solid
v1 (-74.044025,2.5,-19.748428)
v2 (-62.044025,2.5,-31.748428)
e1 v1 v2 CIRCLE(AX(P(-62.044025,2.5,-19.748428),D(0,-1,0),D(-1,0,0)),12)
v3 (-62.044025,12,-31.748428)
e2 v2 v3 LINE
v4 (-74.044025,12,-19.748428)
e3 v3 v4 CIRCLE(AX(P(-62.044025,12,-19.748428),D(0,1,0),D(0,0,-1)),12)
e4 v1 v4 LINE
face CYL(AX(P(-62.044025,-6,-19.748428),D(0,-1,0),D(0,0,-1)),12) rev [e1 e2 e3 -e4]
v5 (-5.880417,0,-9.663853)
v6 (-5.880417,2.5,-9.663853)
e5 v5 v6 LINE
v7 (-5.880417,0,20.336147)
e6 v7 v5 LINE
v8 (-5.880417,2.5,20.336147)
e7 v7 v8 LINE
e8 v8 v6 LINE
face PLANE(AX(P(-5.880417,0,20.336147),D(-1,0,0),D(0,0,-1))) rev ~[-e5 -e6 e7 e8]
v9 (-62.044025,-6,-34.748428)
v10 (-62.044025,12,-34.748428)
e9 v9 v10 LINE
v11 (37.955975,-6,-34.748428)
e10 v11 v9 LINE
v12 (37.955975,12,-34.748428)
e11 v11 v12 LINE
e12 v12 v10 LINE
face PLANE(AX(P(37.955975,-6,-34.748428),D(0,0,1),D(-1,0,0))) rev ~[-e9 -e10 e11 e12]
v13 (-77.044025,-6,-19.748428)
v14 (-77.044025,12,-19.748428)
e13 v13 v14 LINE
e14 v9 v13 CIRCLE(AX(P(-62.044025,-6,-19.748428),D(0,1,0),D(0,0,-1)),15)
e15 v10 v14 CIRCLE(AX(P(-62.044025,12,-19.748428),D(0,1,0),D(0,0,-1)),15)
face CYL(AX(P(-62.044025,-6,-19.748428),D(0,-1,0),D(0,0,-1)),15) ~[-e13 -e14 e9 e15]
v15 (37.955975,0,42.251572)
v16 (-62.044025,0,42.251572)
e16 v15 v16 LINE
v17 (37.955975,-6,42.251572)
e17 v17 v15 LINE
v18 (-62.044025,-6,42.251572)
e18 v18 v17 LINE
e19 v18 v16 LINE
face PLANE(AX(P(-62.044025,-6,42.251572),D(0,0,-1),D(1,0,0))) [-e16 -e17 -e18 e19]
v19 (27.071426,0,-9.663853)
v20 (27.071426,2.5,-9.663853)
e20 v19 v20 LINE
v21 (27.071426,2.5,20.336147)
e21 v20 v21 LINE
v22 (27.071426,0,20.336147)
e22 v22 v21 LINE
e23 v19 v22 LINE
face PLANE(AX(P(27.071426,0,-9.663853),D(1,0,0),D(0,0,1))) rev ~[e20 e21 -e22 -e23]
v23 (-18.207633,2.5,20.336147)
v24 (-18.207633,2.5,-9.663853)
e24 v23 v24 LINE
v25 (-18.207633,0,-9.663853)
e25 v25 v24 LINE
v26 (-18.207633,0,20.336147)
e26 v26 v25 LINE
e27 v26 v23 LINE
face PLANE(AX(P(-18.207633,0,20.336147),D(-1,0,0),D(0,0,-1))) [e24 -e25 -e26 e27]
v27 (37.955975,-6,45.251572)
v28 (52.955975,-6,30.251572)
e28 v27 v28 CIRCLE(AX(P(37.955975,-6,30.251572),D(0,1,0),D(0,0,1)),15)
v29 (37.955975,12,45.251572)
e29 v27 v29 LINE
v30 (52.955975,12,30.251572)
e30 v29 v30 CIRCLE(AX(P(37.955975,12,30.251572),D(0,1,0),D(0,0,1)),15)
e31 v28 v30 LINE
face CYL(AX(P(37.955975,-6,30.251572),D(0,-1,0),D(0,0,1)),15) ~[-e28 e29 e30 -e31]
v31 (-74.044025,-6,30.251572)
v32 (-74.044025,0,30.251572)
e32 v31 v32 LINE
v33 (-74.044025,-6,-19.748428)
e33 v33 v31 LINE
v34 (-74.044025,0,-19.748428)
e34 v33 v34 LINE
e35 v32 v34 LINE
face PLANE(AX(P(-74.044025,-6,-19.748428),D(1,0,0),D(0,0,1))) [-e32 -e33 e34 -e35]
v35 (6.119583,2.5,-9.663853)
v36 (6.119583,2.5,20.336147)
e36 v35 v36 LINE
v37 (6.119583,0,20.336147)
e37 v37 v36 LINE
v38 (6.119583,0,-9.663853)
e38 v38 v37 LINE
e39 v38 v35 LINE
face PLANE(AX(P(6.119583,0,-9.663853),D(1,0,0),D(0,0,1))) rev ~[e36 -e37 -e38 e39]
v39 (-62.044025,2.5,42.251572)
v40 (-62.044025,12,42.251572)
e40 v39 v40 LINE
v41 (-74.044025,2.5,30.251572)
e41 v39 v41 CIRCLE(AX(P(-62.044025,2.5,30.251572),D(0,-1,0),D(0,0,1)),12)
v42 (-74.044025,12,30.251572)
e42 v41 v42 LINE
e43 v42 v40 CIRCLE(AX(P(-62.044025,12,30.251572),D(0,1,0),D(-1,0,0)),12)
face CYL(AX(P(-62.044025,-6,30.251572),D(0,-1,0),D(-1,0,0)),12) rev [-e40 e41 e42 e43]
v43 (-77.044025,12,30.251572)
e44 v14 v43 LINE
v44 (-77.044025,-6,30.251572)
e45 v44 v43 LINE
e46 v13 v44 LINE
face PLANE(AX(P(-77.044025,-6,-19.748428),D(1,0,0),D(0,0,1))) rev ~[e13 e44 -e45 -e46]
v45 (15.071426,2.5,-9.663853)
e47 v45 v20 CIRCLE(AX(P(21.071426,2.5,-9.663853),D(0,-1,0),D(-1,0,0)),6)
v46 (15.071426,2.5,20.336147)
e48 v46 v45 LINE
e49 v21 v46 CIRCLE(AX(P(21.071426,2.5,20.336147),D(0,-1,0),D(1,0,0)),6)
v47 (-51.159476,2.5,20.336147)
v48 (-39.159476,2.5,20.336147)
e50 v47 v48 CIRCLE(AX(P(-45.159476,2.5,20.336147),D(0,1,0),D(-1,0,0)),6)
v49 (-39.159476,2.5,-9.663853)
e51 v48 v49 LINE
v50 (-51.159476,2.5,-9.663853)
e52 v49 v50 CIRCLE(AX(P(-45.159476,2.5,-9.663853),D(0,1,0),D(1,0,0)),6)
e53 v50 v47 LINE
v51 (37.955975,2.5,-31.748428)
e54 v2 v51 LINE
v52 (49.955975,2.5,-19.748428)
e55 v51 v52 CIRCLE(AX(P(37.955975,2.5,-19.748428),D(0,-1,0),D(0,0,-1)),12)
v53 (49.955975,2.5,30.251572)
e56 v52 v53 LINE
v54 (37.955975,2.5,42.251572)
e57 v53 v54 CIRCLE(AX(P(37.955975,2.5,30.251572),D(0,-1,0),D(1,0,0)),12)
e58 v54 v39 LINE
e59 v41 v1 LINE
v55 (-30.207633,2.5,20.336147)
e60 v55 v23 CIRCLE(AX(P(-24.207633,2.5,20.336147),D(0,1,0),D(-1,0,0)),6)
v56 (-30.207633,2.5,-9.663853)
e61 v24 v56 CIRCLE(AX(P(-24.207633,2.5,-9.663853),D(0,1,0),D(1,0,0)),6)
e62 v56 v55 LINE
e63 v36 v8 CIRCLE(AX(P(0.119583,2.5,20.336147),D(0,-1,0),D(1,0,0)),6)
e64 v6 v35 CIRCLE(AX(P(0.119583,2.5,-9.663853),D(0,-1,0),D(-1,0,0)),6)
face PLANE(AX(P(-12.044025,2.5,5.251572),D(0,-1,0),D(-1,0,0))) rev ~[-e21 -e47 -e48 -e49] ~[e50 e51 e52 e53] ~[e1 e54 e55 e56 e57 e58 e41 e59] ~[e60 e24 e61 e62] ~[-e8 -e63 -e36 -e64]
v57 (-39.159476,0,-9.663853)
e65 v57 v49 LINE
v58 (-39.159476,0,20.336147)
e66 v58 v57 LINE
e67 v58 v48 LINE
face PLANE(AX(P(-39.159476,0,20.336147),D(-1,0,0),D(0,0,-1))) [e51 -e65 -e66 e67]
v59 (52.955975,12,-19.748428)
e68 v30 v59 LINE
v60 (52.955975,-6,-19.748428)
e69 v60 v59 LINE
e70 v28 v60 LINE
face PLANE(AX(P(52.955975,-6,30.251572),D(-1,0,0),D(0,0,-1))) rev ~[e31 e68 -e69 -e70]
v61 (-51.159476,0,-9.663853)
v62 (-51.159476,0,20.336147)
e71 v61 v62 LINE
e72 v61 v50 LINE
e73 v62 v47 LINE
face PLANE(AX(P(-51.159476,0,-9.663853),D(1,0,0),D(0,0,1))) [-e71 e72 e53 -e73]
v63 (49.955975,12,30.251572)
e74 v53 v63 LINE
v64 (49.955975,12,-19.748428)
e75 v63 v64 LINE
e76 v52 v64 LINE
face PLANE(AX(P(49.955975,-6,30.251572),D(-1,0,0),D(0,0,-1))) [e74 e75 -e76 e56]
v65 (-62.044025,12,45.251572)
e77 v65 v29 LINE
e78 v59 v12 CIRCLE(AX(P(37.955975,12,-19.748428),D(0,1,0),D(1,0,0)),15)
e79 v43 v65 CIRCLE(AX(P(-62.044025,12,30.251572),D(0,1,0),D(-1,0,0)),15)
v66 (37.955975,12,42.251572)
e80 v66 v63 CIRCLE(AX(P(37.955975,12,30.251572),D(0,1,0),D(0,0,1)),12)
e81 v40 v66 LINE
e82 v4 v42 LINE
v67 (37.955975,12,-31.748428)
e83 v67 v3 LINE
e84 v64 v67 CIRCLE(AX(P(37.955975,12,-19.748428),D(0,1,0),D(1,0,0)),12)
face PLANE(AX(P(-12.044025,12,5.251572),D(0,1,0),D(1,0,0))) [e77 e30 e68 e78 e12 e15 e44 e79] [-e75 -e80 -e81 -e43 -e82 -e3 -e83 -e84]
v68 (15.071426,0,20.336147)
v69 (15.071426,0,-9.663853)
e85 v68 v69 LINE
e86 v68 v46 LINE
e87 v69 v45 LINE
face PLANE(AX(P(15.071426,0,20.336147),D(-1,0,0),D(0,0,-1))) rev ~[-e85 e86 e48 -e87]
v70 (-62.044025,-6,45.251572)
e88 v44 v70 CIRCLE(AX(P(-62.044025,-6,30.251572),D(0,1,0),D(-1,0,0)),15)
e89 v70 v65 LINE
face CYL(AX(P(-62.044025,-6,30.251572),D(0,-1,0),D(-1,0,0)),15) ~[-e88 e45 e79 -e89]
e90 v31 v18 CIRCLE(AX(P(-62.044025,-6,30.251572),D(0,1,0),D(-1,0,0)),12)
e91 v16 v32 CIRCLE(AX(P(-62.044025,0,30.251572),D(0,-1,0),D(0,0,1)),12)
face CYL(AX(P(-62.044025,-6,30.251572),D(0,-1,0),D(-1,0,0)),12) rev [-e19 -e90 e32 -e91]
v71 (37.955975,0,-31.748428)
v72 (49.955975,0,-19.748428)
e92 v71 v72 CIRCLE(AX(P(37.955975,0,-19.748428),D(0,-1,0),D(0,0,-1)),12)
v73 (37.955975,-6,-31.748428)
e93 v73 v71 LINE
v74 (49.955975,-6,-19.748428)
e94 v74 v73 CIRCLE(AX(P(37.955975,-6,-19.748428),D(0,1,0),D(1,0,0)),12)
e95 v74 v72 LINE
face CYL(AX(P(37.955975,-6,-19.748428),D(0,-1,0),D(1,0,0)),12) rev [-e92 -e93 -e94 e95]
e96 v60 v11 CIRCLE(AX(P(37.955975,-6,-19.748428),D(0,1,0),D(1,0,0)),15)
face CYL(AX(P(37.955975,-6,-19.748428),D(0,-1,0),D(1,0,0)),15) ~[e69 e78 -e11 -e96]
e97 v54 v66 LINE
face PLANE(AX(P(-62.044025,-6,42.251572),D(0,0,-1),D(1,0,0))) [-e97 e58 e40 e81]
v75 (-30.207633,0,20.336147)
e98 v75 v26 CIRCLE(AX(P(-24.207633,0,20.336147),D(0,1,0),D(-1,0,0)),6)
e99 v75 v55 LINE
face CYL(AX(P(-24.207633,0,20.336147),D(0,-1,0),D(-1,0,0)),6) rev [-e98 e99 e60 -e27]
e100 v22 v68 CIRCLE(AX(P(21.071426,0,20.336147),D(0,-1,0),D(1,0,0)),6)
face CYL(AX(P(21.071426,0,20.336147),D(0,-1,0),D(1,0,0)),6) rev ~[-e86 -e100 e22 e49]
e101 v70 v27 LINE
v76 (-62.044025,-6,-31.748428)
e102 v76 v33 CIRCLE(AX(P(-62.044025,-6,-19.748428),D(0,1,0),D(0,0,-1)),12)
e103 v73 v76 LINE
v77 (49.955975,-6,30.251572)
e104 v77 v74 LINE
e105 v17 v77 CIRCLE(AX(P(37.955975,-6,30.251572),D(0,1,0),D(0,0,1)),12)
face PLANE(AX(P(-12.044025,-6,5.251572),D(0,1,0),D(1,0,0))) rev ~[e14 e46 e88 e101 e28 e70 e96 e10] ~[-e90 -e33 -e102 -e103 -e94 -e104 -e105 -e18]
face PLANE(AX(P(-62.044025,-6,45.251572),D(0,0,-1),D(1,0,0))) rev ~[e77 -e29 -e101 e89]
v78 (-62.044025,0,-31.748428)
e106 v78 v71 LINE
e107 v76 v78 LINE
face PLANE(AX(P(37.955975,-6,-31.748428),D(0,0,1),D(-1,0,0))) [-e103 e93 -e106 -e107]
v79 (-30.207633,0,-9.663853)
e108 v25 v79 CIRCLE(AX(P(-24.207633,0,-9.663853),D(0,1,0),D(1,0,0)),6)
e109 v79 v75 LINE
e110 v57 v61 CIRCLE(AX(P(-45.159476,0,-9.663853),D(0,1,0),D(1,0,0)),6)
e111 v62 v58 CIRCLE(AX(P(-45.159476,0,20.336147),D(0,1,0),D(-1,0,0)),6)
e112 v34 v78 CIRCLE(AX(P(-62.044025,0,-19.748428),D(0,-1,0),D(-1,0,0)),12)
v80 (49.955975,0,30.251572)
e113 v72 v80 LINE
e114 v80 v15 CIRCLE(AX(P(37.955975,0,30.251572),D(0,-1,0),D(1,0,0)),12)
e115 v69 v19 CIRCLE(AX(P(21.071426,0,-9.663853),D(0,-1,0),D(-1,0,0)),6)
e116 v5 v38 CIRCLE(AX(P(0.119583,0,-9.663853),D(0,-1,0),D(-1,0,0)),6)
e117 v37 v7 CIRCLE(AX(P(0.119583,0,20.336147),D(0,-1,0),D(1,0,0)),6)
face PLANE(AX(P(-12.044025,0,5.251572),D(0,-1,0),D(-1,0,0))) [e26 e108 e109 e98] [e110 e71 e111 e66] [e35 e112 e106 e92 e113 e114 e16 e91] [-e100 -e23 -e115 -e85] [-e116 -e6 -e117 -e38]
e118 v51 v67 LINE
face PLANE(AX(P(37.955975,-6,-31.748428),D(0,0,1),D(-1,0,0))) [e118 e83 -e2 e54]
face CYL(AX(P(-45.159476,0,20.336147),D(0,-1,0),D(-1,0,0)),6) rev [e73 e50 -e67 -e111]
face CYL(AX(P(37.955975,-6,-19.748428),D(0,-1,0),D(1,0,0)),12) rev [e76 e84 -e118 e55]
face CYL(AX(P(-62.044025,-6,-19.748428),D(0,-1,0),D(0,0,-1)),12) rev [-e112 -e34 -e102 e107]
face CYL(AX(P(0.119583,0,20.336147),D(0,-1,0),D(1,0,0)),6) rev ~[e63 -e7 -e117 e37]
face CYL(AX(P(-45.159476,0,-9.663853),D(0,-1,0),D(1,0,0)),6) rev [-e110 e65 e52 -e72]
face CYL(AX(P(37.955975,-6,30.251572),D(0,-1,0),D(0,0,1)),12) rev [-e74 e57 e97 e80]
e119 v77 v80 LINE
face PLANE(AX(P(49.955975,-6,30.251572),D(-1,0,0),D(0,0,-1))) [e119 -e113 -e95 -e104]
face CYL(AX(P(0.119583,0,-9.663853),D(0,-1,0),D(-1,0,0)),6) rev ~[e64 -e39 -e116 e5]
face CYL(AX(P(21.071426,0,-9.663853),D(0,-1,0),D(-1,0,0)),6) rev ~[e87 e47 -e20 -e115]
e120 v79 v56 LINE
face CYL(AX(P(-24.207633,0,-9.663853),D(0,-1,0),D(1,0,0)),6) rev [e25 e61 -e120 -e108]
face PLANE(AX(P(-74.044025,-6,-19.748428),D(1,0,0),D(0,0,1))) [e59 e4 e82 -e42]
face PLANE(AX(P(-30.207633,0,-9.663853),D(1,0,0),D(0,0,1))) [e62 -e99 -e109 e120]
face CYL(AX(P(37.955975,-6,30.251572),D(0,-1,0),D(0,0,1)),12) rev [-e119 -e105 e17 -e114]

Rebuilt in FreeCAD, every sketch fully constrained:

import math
import FreeCAD as App
import Part
import Sketcher

doc = App.newDocument("Part")
params = doc.addObject("Spreadsheet::Sheet", "Params")
for row, (alias, value) in enumerate([
    ("sketch1_radius", "15 mm"),
    ("sketch1_radius2", "12 mm"),
    ("sketch1_width", "100 mm"),
    ("sketch1_height", "50 mm"),
    ("pad1_length", "12 mm"),
    ("pad1_length2", "6 mm"),
    ("sketch2_radius", "12 mm"),
    ("sketch2_radius2", "6 mm"),
    ("sketch2_width", "100 mm"),
    ("sketch2_height", "50 mm"),
    ("sketch2_height2", "30 mm"),
    ("pad2_length", "2.5 mm"),
], start=1):
    params.set(f"A{row}", alias)
    params.set(f"B{row}", "=" + value)
    params.setAlias(f"B{row}", alias)

body = doc.addObject("PartDesign::Body", "Body")

sketch1 = body.newObject("Sketcher::SketchObject", "Sketch")
sketch1.AttachmentSupport = (doc.getObject("XZ_Plane"), [""])
sketch1.MapMode = "FlatFace"
sketch1.addGeometry(Part.LineSegment(App.Vector(-77, -20, 0), App.Vector(-77, 30, 0)), False)
sketch1.addGeometry(Part.ArcOfCircle(Part.Circle(App.Vector(-62, 30, 0), App.Vector(0, 0, 1), 15), math.radians(90), math.radians(180)), False)
sketch1.addGeometry(Part.LineSegment(App.Vector(-62, 45, 0), App.Vector(38, 45, 0)), False)
sketch1.addGeometry(Part.ArcOfCircle(Part.Circle(App.Vector(38, 30, 0), App.Vector(0, 0, 1), 15), math.radians(0), math.radians(90)), False)
sketch1.addGeometry(Part.LineSegment(App.Vector(53, 30, 0), App.Vector(53, -20, 0)), False)
sketch1.addGeometry(Part.ArcOfCircle(Part.Circle(App.Vector(38, -20, 0), App.Vector(0, 0, 1), 15), math.radians(-90), math.radians(0)), False)
sketch1.addGeometry(Part.LineSegment(App.Vector(38, -35, 0), App.Vector(-62, -35, 0)), False)
sketch1.addGeometry(Part.ArcOfCircle(Part.Circle(App.Vector(-62, -20, 0), App.Vector(0, 0, 1), 15), math.radians(180), math.radians(270)), False)
sketch1.addGeometry(Part.LineSegment(App.Vector(-74, 30, 0), App.Vector(-74, -20, 0)), False)
sketch1.addGeometry(Part.ArcOfCircle(Part.Circle(App.Vector(-62, -20, 0), App.Vector(0, 0, 1), 12), math.radians(-180), math.radians(-90)), False)
sketch1.addGeometry(Part.LineSegment(App.Vector(-62, -32, 0), App.Vector(38, -32, 0)), False)
sketch1.addGeometry(Part.ArcOfCircle(Part.Circle(App.Vector(38, -20, 0), App.Vector(0, 0, 1), 12), math.radians(-90), math.radians(0)), False)
sketch1.addGeometry(Part.LineSegment(App.Vector(50, -20, 0), App.Vector(50, 30, 0)), False)
sketch1.addGeometry(Part.ArcOfCircle(Part.Circle(App.Vector(38, 30, 0), App.Vector(0, 0, 1), 12), math.radians(0), math.radians(90)), False)
sketch1.addGeometry(Part.LineSegment(App.Vector(38, 42, 0), App.Vector(-62, 42, 0)), False)
sketch1.addGeometry(Part.ArcOfCircle(Part.Circle(App.Vector(-62, 30, 0), App.Vector(0, 0, 1), 12), math.radians(90), math.radians(180)), False)
sketch1.addConstraint(Sketcher.Constraint("Tangent", 0, 2, 1, 2))
sketch1.addConstraint(Sketcher.Constraint("Tangent", 1, 1, 2, 1))
sketch1.addConstraint(Sketcher.Constraint("Tangent", 2, 2, 3, 2))
sketch1.addConstraint(Sketcher.Constraint("Tangent", 3, 1, 4, 1))
sketch1.addConstraint(Sketcher.Constraint("Tangent", 4, 2, 5, 2))
sketch1.addConstraint(Sketcher.Constraint("Tangent", 5, 1, 6, 1))
sketch1.addConstraint(Sketcher.Constraint("Tangent", 6, 2, 7, 2))
sketch1.addConstraint(Sketcher.Constraint("Tangent", 7, 1, 0, 1))
sketch1.addConstraint(Sketcher.Constraint("Tangent", 8, 2, 9, 1))
sketch1.addConstraint(Sketcher.Constraint("Tangent", 9, 2, 10, 1))
sketch1.addConstraint(Sketcher.Constraint("Tangent", 10, 2, 11, 1))
sketch1.addConstraint(Sketcher.Constraint("Tangent", 11, 2, 12, 1))
sketch1.addConstraint(Sketcher.Constraint("Tangent", 12, 2, 13, 1))
sketch1.addConstraint(Sketcher.Constraint("Tangent", 13, 2, 14, 1))
sketch1.addConstraint(Sketcher.Constraint("Tangent", 14, 2, 15, 1))
sketch1.addConstraint(Sketcher.Constraint("Tangent", 15, 2, 8, 1))
sketch1.addConstraint(Sketcher.Constraint("Vertical", 0))
sketch1.addConstraint(Sketcher.Constraint("Horizontal", 2))
sketch1.addConstraint(Sketcher.Constraint("Vertical", 4))
sketch1.addConstraint(Sketcher.Constraint("Horizontal", 6))
sketch1.addConstraint(Sketcher.Constraint("Vertical", 8))
sketch1.addConstraint(Sketcher.Constraint("Horizontal", 10))
sketch1.addConstraint(Sketcher.Constraint("Vertical", 12))
sketch1.addConstraint(Sketcher.Constraint("Horizontal", 14))
sketch1.addConstraint(Sketcher.Constraint("Coincident", 9, 3, 7, 3))
sketch1.addConstraint(Sketcher.Constraint("Coincident", 11, 3, 5, 3))
sketch1.addConstraint(Sketcher.Constraint("Coincident", 13, 3, 3, 3))
sketch1.addConstraint(Sketcher.Constraint("Equal", 1, 3))
sketch1.addConstraint(Sketcher.Constraint("Equal", 3, 5))
sketch1.addConstraint(Sketcher.Constraint("Equal", 5, 7))
sketch1.addConstraint(Sketcher.Constraint("Equal", 13, 15))
sketch1.addConstraint(Sketcher.Constraint("Radius", 1, 15.0))
sketch1.addConstraint(Sketcher.Constraint("Radius", 9, 12.0))
sketch1.addConstraint(Sketcher.Constraint("DistanceX", 2, 1, 2, 2, 100.0))
sketch1.addConstraint(Sketcher.Constraint("DistanceY", 0, 1, 0, 2, 50.0))
sketch1.addConstraint(Sketcher.Constraint("DistanceX", 1, 3, -1, 1, 62.044025))
sketch1.addConstraint(Sketcher.Constraint("DistanceY", -1, 1, 1, 3, 30.251572))
sketch1.setExpression("Constraints[31]", "Params.sketch1_radius")
sketch1.setExpression("Constraints[32]", "Params.sketch1_radius2")
sketch1.setExpression("Constraints[33]", "Params.sketch1_width")
sketch1.setExpression("Constraints[34]", "Params.sketch1_height")
pad1 = body.newObject("PartDesign::Pad", "Pad")
pad1.Profile = sketch1
pad1.Type = "TwoLengths"
pad1.setExpression("Length", "Params.pad1_length")
pad1.setExpression("Length2", "Params.pad1_length2")
pad1.Reversed = True

sketch2 = body.newObject("Sketcher::SketchObject", "Sketch001")
sketch2.AttachmentSupport = (doc.getObject("XZ_Plane"), [""])
sketch2.MapMode = "FlatFace"
sketch2.addGeometry(Part.ArcOfCircle(Part.Circle(App.Vector(-62, -20, 0), App.Vector(0, 0, 1), 12), math.radians(-180), math.radians(-90)), False)
sketch2.addGeometry(Part.LineSegment(App.Vector(-74, -20, 0), App.Vector(-74, 30, 0)), False)
sketch2.addGeometry(Part.ArcOfCircle(Part.Circle(App.Vector(-62, 30, 0), App.Vector(0, 0, 1), 12), math.radians(90), math.radians(180)), False)
sketch2.addGeometry(Part.LineSegment(App.Vector(-62, 42, 0), App.Vector(38, 42, 0)), False)
sketch2.addGeometry(Part.ArcOfCircle(Part.Circle(App.Vector(38, 30, 0), App.Vector(0, 0, 1), 12), math.radians(0), math.radians(90)), False)
sketch2.addGeometry(Part.LineSegment(App.Vector(50, 30, 0), App.Vector(50, -20, 0)), False)
sketch2.addGeometry(Part.ArcOfCircle(Part.Circle(App.Vector(38, -20, 0), App.Vector(0, 0, 1), 12), math.radians(-90), math.radians(0)), False)
sketch2.addGeometry(Part.LineSegment(App.Vector(38, -32, 0), App.Vector(-62, -32, 0)), False)
sketch2.addGeometry(Part.LineSegment(App.Vector(27, -10, 0), App.Vector(27, 20, 0)), False)
sketch2.addGeometry(Part.ArcOfCircle(Part.Circle(App.Vector(21, 20, 0), App.Vector(0, 0, 1), 6), math.radians(0), math.radians(180)), False)
sketch2.addGeometry(Part.LineSegment(App.Vector(15, 20, 0), App.Vector(15, -10, 0)), False)
sketch2.addGeometry(Part.ArcOfCircle(Part.Circle(App.Vector(21, -10, 0), App.Vector(0, 0, 1), 6), math.radians(180), math.radians(360)), False)
sketch2.addGeometry(Part.LineSegment(App.Vector(6, -10, 0), App.Vector(6, 20, 0)), False)
sketch2.addGeometry(Part.ArcOfCircle(Part.Circle(App.Vector(0, 20, 0), App.Vector(0, 0, 1), 6), math.radians(0), math.radians(180)), False)
sketch2.addGeometry(Part.LineSegment(App.Vector(-6, 20, 0), App.Vector(-6, -10, 0)), False)
sketch2.addGeometry(Part.ArcOfCircle(Part.Circle(App.Vector(0, -10, 0), App.Vector(0, 0, 1), 6), math.radians(180), math.radians(360)), False)
sketch2.addGeometry(Part.LineSegment(App.Vector(-30, 20, 0), App.Vector(-30, -10, 0)), False)
sketch2.addGeometry(Part.ArcOfCircle(Part.Circle(App.Vector(-24, -10, 0), App.Vector(0, 0, 1), 6), math.radians(180), math.radians(360)), False)
sketch2.addGeometry(Part.LineSegment(App.Vector(-18, -10, 0), App.Vector(-18, 20, 0)), False)
sketch2.addGeometry(Part.ArcOfCircle(Part.Circle(App.Vector(-24, 20, 0), App.Vector(0, 0, 1), 6), math.radians(0), math.radians(180)), False)
sketch2.addGeometry(Part.LineSegment(App.Vector(-51, 20, 0), App.Vector(-51, -10, 0)), False)
sketch2.addGeometry(Part.ArcOfCircle(Part.Circle(App.Vector(-45, -10, 0), App.Vector(0, 0, 1), 6), math.radians(180), math.radians(360)), False)
sketch2.addGeometry(Part.LineSegment(App.Vector(-39, -10, 0), App.Vector(-39, 20, 0)), False)
sketch2.addGeometry(Part.ArcOfCircle(Part.Circle(App.Vector(-45, 20, 0), App.Vector(0, 0, 1), 6), math.radians(0), math.radians(180)), False)
sketch2.addConstraint(Sketcher.Constraint("Tangent", 0, 1, 1, 1))
sketch2.addConstraint(Sketcher.Constraint("Tangent", 1, 2, 2, 2))
sketch2.addConstraint(Sketcher.Constraint("Tangent", 2, 1, 3, 1))
sketch2.addConstraint(Sketcher.Constraint("Tangent", 3, 2, 4, 2))
sketch2.addConstraint(Sketcher.Constraint("Tangent", 4, 1, 5, 1))
sketch2.addConstraint(Sketcher.Constraint("Tangent", 5, 2, 6, 2))
sketch2.addConstraint(Sketcher.Constraint("Tangent", 6, 1, 7, 1))
sketch2.addConstraint(Sketcher.Constraint("Tangent", 7, 2, 0, 2))
sketch2.addConstraint(Sketcher.Constraint("Tangent", 8, 2, 9, 1))
sketch2.addConstraint(Sketcher.Constraint("Tangent", 9, 2, 10, 1))
sketch2.addConstraint(Sketcher.Constraint("Tangent", 10, 2, 11, 1))
sketch2.addConstraint(Sketcher.Constraint("Tangent", 11, 2, 8, 1))
sketch2.addConstraint(Sketcher.Constraint("Tangent", 12, 2, 13, 1))
sketch2.addConstraint(Sketcher.Constraint("Tangent", 13, 2, 14, 1))
sketch2.addConstraint(Sketcher.Constraint("Tangent", 14, 2, 15, 1))
sketch2.addConstraint(Sketcher.Constraint("Tangent", 15, 2, 12, 1))
sketch2.addConstraint(Sketcher.Constraint("Tangent", 16, 2, 17, 1))
sketch2.addConstraint(Sketcher.Constraint("Tangent", 17, 2, 18, 1))
sketch2.addConstraint(Sketcher.Constraint("Tangent", 18, 2, 19, 1))
sketch2.addConstraint(Sketcher.Constraint("Tangent", 19, 2, 16, 1))
sketch2.addConstraint(Sketcher.Constraint("Tangent", 20, 2, 21, 1))
sketch2.addConstraint(Sketcher.Constraint("Tangent", 21, 2, 22, 1))
sketch2.addConstraint(Sketcher.Constraint("Tangent", 22, 2, 23, 1))
sketch2.addConstraint(Sketcher.Constraint("Tangent", 23, 2, 20, 1))
sketch2.addConstraint(Sketcher.Constraint("Vertical", 1))
sketch2.addConstraint(Sketcher.Constraint("Horizontal", 3))
sketch2.addConstraint(Sketcher.Constraint("Vertical", 5))
sketch2.addConstraint(Sketcher.Constraint("Horizontal", 7))
sketch2.addConstraint(Sketcher.Constraint("Vertical", 8))
sketch2.addConstraint(Sketcher.Constraint("Vertical", 10))
sketch2.addConstraint(Sketcher.Constraint("Vertical", 12))
sketch2.addConstraint(Sketcher.Constraint("Vertical", 14))
sketch2.addConstraint(Sketcher.Constraint("Vertical", 16))
sketch2.addConstraint(Sketcher.Constraint("Vertical", 18))
sketch2.addConstraint(Sketcher.Constraint("Vertical", 20))
sketch2.addConstraint(Sketcher.Constraint("Vertical", 22))
sketch2.addConstraint(Sketcher.Constraint("Equal", 0, 2))
sketch2.addConstraint(Sketcher.Constraint("Equal", 2, 4))
sketch2.addConstraint(Sketcher.Constraint("Equal", 4, 6))
sketch2.addConstraint(Sketcher.Constraint("Equal", 11, 13))
sketch2.addConstraint(Sketcher.Constraint("Equal", 15, 17))
sketch2.addConstraint(Sketcher.Constraint("Equal", 19, 21))
sketch2.addConstraint(Sketcher.Constraint("Horizontal", 9, 3, 13, 3))
sketch2.addConstraint(Sketcher.Constraint("Horizontal", 11, 3, 15, 3))
sketch2.addConstraint(Sketcher.Constraint("Horizontal", 15, 3, 17, 3))
sketch2.addConstraint(Sketcher.Constraint("Horizontal", 13, 3, 19, 3))
sketch2.addConstraint(Sketcher.Constraint("Horizontal", 17, 3, 21, 3))
sketch2.addConstraint(Sketcher.Constraint("Horizontal", 19, 3, 23, 3))
sketch2.addConstraint(Sketcher.Constraint("Radius", 0, 12.0))
sketch2.addConstraint(Sketcher.Constraint("Radius", 9, 6.0))
sketch2.addConstraint(Sketcher.Constraint("DistanceX", 3, 1, 3, 2, 100.0))
sketch2.addConstraint(Sketcher.Constraint("DistanceY", 1, 1, 1, 2, 50.0))
sketch2.addConstraint(Sketcher.Constraint("DistanceY", 8, 1, 8, 2, 30.0))
sketch2.addConstraint(Sketcher.Constraint("DistanceX", 9, 3, 4, 3, 16.884549))
sketch2.addConstraint(Sketcher.Constraint("DistanceX", 13, 3, 4, 3, 37.836392))
sketch2.addConstraint(Sketcher.Constraint("DistanceX", 0, 3, 17, 3, 37.836392))
sketch2.addConstraint(Sketcher.Constraint("DistanceX", 0, 3, 21, 3, 16.884549))
sketch2.addConstraint(Sketcher.Constraint("DistanceX", 0, 3, -1, 1, 62.044025))
sketch2.addConstraint(Sketcher.Constraint("DistanceY", 0, 3, -1, 1, 19.748428))
sketch2.addConstraint(Sketcher.Constraint("DistanceY", -1, 1, 9, 3, 20.336147))
sketch2.setExpression("Constraints[48]", "Params.sketch2_radius")
sketch2.setExpression("Constraints[49]", "Params.sketch2_radius2")
sketch2.setExpression("Constraints[50]", "Params.sketch2_width")
sketch2.setExpression("Constraints[51]", "Params.sketch2_height")
sketch2.setExpression("Constraints[52]", "Params.sketch2_height2")
pad2 = body.newObject("PartDesign::Pad", "Pad001")
pad2.Profile = sketch2
pad2.setExpression("Length", "Params.pad2_length")
pad2.Reversed = True

doc.recompute()
